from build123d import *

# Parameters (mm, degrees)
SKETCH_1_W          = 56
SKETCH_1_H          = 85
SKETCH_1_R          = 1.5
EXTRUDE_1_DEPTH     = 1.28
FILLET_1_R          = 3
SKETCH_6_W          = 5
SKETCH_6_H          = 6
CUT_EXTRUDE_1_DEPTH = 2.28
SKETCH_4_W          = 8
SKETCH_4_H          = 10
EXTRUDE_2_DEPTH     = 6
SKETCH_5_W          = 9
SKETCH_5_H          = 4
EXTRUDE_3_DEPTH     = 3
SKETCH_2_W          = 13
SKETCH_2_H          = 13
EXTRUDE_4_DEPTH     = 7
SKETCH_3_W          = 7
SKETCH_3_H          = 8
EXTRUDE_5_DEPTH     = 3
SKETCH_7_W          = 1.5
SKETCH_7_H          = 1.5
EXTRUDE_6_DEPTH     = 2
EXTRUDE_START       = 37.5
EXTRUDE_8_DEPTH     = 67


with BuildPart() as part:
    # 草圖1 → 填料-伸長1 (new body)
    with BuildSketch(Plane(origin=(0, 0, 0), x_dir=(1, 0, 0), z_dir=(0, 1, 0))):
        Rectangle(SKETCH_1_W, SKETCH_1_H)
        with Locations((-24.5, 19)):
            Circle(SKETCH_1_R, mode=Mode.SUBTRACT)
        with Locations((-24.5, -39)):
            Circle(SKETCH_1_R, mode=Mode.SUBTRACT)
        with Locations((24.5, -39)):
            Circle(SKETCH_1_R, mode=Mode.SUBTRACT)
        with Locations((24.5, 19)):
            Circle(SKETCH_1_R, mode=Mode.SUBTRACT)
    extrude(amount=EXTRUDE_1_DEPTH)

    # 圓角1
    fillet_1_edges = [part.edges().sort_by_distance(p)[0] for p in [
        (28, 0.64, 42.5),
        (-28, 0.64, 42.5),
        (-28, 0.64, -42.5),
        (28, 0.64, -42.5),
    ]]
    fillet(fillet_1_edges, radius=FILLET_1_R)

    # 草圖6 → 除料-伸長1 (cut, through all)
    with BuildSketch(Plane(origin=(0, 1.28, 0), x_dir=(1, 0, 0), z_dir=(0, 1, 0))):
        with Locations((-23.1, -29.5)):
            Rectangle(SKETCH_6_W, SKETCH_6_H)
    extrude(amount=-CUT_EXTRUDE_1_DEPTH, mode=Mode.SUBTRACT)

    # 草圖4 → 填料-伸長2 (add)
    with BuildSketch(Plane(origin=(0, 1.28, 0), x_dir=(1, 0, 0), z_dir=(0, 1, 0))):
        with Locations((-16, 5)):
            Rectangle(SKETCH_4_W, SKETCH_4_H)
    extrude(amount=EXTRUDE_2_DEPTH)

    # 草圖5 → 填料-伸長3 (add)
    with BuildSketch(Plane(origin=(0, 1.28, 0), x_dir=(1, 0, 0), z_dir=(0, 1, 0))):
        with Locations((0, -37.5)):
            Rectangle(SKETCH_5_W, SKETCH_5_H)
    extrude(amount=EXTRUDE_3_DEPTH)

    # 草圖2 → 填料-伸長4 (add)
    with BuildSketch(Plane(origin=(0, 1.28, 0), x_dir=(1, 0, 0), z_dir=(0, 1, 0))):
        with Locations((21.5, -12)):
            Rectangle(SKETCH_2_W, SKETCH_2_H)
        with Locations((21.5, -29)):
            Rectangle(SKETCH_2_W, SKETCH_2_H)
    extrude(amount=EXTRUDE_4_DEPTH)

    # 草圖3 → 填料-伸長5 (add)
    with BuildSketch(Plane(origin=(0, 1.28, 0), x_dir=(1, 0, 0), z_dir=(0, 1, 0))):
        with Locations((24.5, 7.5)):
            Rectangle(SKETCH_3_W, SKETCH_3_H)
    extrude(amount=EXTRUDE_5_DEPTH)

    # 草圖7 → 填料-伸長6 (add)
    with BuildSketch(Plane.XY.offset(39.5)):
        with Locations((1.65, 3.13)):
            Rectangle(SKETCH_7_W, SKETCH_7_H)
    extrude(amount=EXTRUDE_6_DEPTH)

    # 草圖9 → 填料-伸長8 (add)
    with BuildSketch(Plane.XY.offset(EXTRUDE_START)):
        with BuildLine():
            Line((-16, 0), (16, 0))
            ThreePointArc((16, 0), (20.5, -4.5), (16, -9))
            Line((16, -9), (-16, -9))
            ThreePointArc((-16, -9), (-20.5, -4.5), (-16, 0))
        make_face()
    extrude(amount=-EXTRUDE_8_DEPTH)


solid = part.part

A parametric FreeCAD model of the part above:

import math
import FreeCAD as App
import Part
import Sketcher
Q = App.Units.Quantity


def edges_at(feature, points):
    """Names of the edges that pass closest to the given points."""
    edges = feature.Shape.Edges
    near = lambda p: min(range(len(edges)), key=lambda i: edges[i].distToShape(Part.Vertex(*p))[0])
    return sorted({f"Edge{near(p) + 1}" for p in points})


def add_polygon(sketch, points):
    """Adds a closed chain of lines whose ends are joined by coincident constraints."""
    first, n = sketch.GeometryCount, len(points)
    for a, b in zip(points, points[1:] + points[:1]):
        sketch.addGeometry(Part.LineSegment(App.Vector(*a, 0), App.Vector(*b, 0)), False)
    for i in range(n):
        sketch.addConstraint(Sketcher.Constraint("Coincident", first + i, 2, first + (i + 1) % n, 1))

doc = App.newDocument("Part")
body = doc.addObject("PartDesign::Body", "Body")

sketch1 = body.newObject("Sketcher::SketchObject", "Sketch")
sketch1.AttachmentSupport = (doc.getObject("XZ_Plane"), [""])
sketch1.MapMode = "FlatFace"
add_polygon(sketch1, [(-28, -42.5), (-28, 42.5), (28, 42.5), (28, -42.5)])
sketch1.addGeometry(Part.Circle(App.Vector(-24.5, 39, 0), App.Vector(0, 0, 1), 1.5), False)
sketch1.addGeometry(Part.Circle(App.Vector(24.5, 39, 0), App.Vector(0, 0, 1), 1.5), False)
sketch1.addGeometry(Part.Circle(App.Vector(-24.5, -19, 0), App.Vector(0, 0, 1), 1.5), False)
sketch1.addGeometry(Part.Circle(App.Vector(24.5, -19, 0), App.Vector(0, 0, 1), 1.5), False)
sketch1.addConstraint(Sketcher.Constraint("Vertical", 0))
sketch1.addConstraint(Sketcher.Constraint("Horizontal", 1))
sketch1.addConstraint(Sketcher.Constraint("Vertical", 2))
sketch1.addConstraint(Sketcher.Constraint("Horizontal", 3))
sketch1.addConstraint(Sketcher.Constraint("Equal", 4, 5))
sketch1.addConstraint(Sketcher.Constraint("Equal", 5, 6))
sketch1.addConstraint(Sketcher.Constraint("Equal", 6, 7))
sketch1.addConstraint(Sketcher.Constraint("Symmetric", 0, 2, 2, 2, -1, 1))
sketch1.addConstraint(Sketcher.Constraint("Symmetric", 4, 3, 5, 3, -2))
sketch1.addConstraint(Sketcher.Constraint("Symmetric", 6, 3, 7, 3, -2))
sketch1.addConstraint(Sketcher.Constraint("Vertical", 4, 3, 6, 3))
sketch1.addConstraint(Sketcher.Constraint("Diameter", 4, Q("3 mm")))
sketch1.addConstraint(Sketcher.Constraint("DistanceX", 1, 1, 1, 2, Q("56 mm")))
sketch1.addConstraint(Sketcher.Constraint("DistanceY", 0, 1, 0, 2, Q("85 mm")))
sketch1.addConstraint(Sketcher.Constraint("DistanceY", -1, 1, 4, 3, Q("39 mm")))
sketch1.addConstraint(Sketcher.Constraint("DistanceY", 6, 3, -1, 1, Q("19 mm")))
sketch1.addConstraint(Sketcher.Constraint("DistanceX", 4, 3, 5, 3, Q("49 mm")))
pad1 = body.newObject("PartDesign::Pad", "Pad")
pad1.Profile = sketch1
pad1.Length = 1.28
pad1.Reversed = True
doc.recompute()

fillet = body.newObject("PartDesign::Fillet", "Fillet")
fillet.Base = (pad1, edges_at(pad1, [
    (28, 0.64, 42.5),
    (-28, 0.64, 42.5),
    (-28, 0.64, -42.5),
    (28, 0.64, -42.5),
]))
fillet.Radius = 3

sketch2 = body.newObject("Sketcher::SketchObject", "Sketch001")
sketch2.AttachmentSupport = (doc.getObject("XZ_Plane"), [""])
sketch2.MapMode = "FlatFace"
sketch2.AttachmentOffset = App.Placement(App.Vector(0, 0, -1.28), App.Rotation())
add_polygon(sketch2, [(-25.6, 26.5), (-25.6, 32.5), (-20.6, 32.5), (-20.6, 26.5)])
sketch2.addConstraint(Sketcher.Constraint("Vertical", 0))
sketch2.addConstraint(Sketcher.Constraint("Horizontal", 1))
sketch2.addConstraint(Sketcher.Constraint("Vertical", 2))
sketch2.addConstraint(Sketcher.Constraint("Horizontal", 3))
sketch2.addConstraint(Sketcher.Constraint("DistanceX", 1, 1, 1, 2, Q("5 mm")))
sketch2.addConstraint(Sketcher.Constraint("DistanceY", 0, 1, 0, 2, Q("6 mm")))
sketch2.addConstraint(Sketcher.Constraint("DistanceX", 0, 2, -1, 1, Q("25.6 mm")))
sketch2.addConstraint(Sketcher.Constraint("DistanceY", -1, 1, 0, 2, Q("32.5 mm")))
pocket1 = body.newObject("PartDesign::Pocket", "Pocket")
pocket1.Profile = sketch2
pocket1.Type = "ThroughAll"
pocket1.Reversed = True

sketch3 = body.newObject("Sketcher::SketchObject", "Sketch002")
sketch3.AttachmentSupport = (doc.getObject("XZ_Plane"), [""])
sketch3.MapMode = "FlatFace"
sketch3.AttachmentOffset = App.Placement(App.Vector(0, 0, -1.28), App.Rotation())
add_polygon(sketch3, [(-20, -10), (-20, 0), (-12, 0), (-12, -10)])
sketch3.addConstraint(Sketcher.Constraint("Vertical", 0))
sketch3.addConstraint(Sketcher.Constraint("Horizontal", 1))
sketch3.addConstraint(Sketcher.Constraint("Vertical", 2))
sketch3.addConstraint(Sketcher.Constraint("Horizontal", 3))
sketch3.addConstraint(Sketcher.Constraint("PointOnObject", 0, 2, -1))
sketch3.addConstraint(Sketcher.Constraint("DistanceX", 1, 1, 1, 2, Q("8 mm")))
sketch3.addConstraint(Sketcher.Constraint("DistanceY", 0, 1, 0, 2, Q("10 mm")))
sketch3.addConstraint(Sketcher.Constraint("DistanceX", 0, 2, -1, 1, Q("20 mm")))
pad2 = body.newObject("PartDesign::Pad", "Pad001")
pad2.Profile = sketch3
pad2.Length = 6
pad2.Reversed = True

sketch4 = body.newObject("Sketcher::SketchObject", "Sketch003")
sketch4.AttachmentSupport = (doc.getObject("XZ_Plane"), [""])
sketch4.MapMode = "FlatFace"
sketch4.AttachmentOffset = App.Placement(App.Vector(0, 0, -1.28), App.Rotation())
add_polygon(sketch4, [(-4.5, 35.5), (-4.5, 39.5), (4.5, 39.5), (4.5, 35.5)])
sketch4.addConstraint(Sketcher.Constraint("Vertical", 0))
sketch4.addConstraint(Sketcher.Constraint("Horizontal", 1))
sketch4.addConstraint(Sketcher.Constraint("Vertical", 2))
sketch4.addConstraint(Sketcher.Constraint("Horizontal", 3))
sketch4.addConstraint(Sketcher.Constraint("DistanceX", 1, 1, 1, 2, Q("9 mm")))
sketch4.addConstraint(Sketcher.Constraint("DistanceY", 0, 1, 0, 2, Q("4 mm")))
sketch4.addConstraint(Sketcher.Constraint("DistanceX", 0, 2, -1, 1, Q("4.5 mm")))
sketch4.addConstraint(Sketcher.Constraint("DistanceY", -1, 1, 0, 2, Q("39.5 mm")))
pad3 = body.newObject("PartDesign::Pad", "Pad002")
pad3.Profile = sketch4
pad3.Length = 3
pad3.Reversed = True

sketch5 = body.newObject("Sketcher::SketchObject", "Sketch004")
sketch5.AttachmentSupport = (doc.getObject("XZ_Plane"), [""])
sketch5.MapMode = "FlatFace"
sketch5.AttachmentOffset = App.Placement(App.Vector(0, 0, -1.28), App.Rotation())
add_polygon(sketch5, [(15, 5.5), (15, 18.5), (28, 18.5), (28, 5.5)])
add_polygon(sketch5, [(15, 22.5), (15, 35.5), (28, 35.5), (28, 22.5)])
sketch5.addConstraint(Sketcher.Constraint("Vertical", 0))
sketch5.addConstraint(Sketcher.Constraint("Horizontal", 1))
sketch5.addConstraint(Sketcher.Constraint("Vertical", 2))
sketch5.addConstraint(Sketcher.Constraint("Horizontal", 3))
sketch5.addConstraint(Sketcher.Constraint("Vertical", 4))
sketch5.addConstraint(Sketcher.Constraint("Horizontal", 5))
sketch5.addConstraint(Sketcher.Constraint("Vertical", 6))
sketch5.addConstraint(Sketcher.Constraint("Horizontal", 7))
sketch5.addConstraint(Sketcher.Constraint("Vertical", 3, 2, 4, 2))
sketch5.addConstraint(Sketcher.Constraint("Vertical", 2, 2, 5, 2))
sketch5.addConstraint(Sketcher.Constraint("Equal", 7, 0))
sketch5.addConstraint(Sketcher.Constraint("Equal", 2, 4))
sketch5.addConstraint(Sketcher.Constraint("DistanceX", 1, 1, 1, 2, Q("13 mm")))
sketch5.addConstraint(Sketcher.Constraint("DistanceX", -1, 1, 0, 2, Q("15 mm")))
sketch5.addConstraint(Sketcher.Constraint("DistanceY", 0, 2, 4, 2, Q("17 mm")))
sketch5.addConstraint(Sketcher.Constraint("DistanceY", -1, 1, 0, 2, Q("18.5 mm")))
pad4 = body.newObject("PartDesign::Pad", "Pad003")
pad4.Profile = sketch5
pad4.Length = 7
pad4.Reversed = True

sketch6 = body.newObject("Sketcher::SketchObject", "Sketch005")
sketch6.AttachmentSupport = (doc.getObject("XZ_Plane"), [""])
sketch6.MapMode = "FlatFace"
sketch6.AttachmentOffset = App.Placement(App.Vector(0, 0, -1.28), App.Rotation())
add_polygon(sketch6, [(21, -11.5), (21, -3.5), (28, -3.5), (28, -11.5)])
sketch6.addConstraint(Sketcher.Constraint("Vertical", 0))
sketch6.addConstraint(Sketcher.Constraint("Horizontal", 1))
sketch6.addConstraint(Sketcher.Constraint("Vertical", 2))
sketch6.addConstraint(Sketcher.Constraint("Horizontal", 3))
sketch6.addConstraint(Sketcher.Constraint("DistanceX", 1, 1, 1, 2, Q("7 mm")))
sketch6.addConstraint(Sketcher.Constraint("DistanceY", 0, 1, 0, 2, Q("8 mm")))
sketch6.addConstraint(Sketcher.Constraint("DistanceX", -1, 1, 0, 2, Q("21 mm")))
sketch6.addConstraint(Sketcher.Constraint("DistanceY", 0, 2, -1, 1, Q("3.5 mm")))
pad5 = body.newObject("PartDesign::Pad", "Pad004")
pad5.Profile = sketch6
pad5.Length = 3
pad5.Reversed = True

sketch7 = body.newObject("Sketcher::SketchObject", "Sketch006")
sketch7.AttachmentSupport = (doc.getObject("XY_Plane"), [""])
sketch7.MapMode = "FlatFace"
sketch7.AttachmentOffset = App.Placement(App.Vector(0, 0, 39.5), App.Rotation())
add_polygon(sketch7, [(0.9, 3.88), (0.9, 2.38), (2.4, 2.38), (2.4, 3.88)])
sketch7.addConstraint(Sketcher.Constraint("Vertical", 0))
sketch7.addConstraint(Sketcher.Constraint("Horizontal", 1))
sketch7.addConstraint(Sketcher.Constraint("Vertical", 2))
sketch7.addConstraint(Sketcher.Constraint("Horizontal", 3))
sketch7.addConstraint(Sketcher.Constraint("Equal", 3, 0))
sketch7.addConstraint(Sketcher.Constraint("DistanceX", 1, 1, 1, 2, Q("1.5 mm")))
sketch7.addConstraint(Sketcher.Constraint("DistanceX", -1, 1, 0, 2, Q("0.9 mm")))
sketch7.addConstraint(Sketcher.Constraint("DistanceY", -1, 1, 0, 2, Q("2.38 mm")))
pad6 = body.newObject("PartDesign::Pad", "Pad005")
pad6.Profile = sketch7
pad6.Length = 2

sketch8 = body.newObject("Sketcher::SketchObject", "Sketch007")
sketch8.AttachmentSupport = (doc.getObject("XY_Plane"), [""])
sketch8.MapMode = "FlatFace"
sketch8.AttachmentOffset = App.Placement(App.Vector(0, 0, 37.5), App.Rotation())
sketch8.addGeometry(Part.LineSegment(App.Vector(16, 0, 0), App.Vector(-16, 0, 0)), False)
sketch8.addGeometry(Part.ArcOfCircle(Part.Circle(App.Vector(-16, -4.5, 0), App.Vector(0, 0, 1), 4.5), math.radians(90), math.radians(270)), False)
sketch8.addGeometry(Part.LineSegment(App.Vector(-16, -9, 0), App.Vector(16, -9, 0)), False)
sketch8.addGeometry(Part.ArcOfCircle(Part.Circle(App.Vector(16, -4.5, 0), App.Vector(0, 0, 1), 4.5), math.radians(-90), math.radians(90)), False)
sketch8.addConstraint(Sketcher.Constraint("Tangent", 0, 2, 1, 1))
sketch8.addConstraint(Sketcher.Constraint("Tangent", 1, 2, 2, 1))
sketch8.addConstraint(Sketcher.Constraint("Tangent", 2, 2, 3, 1))
sketch8.addConstraint(Sketcher.Constraint("Tangent", 3, 2, 0, 1))
sketch8.addConstraint(Sketcher.Constraint("Horizontal", 0))
sketch8.addConstraint(Sketcher.Constraint("Horizontal", 2))
sketch8.addConstraint(Sketcher.Constraint("Symmetric", 0, 2, 3, 2, -1, 1))
sketch8.addConstraint(Sketcher.Constraint("Radius", 1, Q("4.5 mm")))
sketch8.addConstraint(Sketcher.Constraint("DistanceX", 0, 2, 0, 1, Q("32 mm")))
pad7 = body.newObject("PartDesign::Pad", "Pad006")
pad7.Profile = sketch8
pad7.Length = 67
pad7.Reversed = True

doc.recompute()
